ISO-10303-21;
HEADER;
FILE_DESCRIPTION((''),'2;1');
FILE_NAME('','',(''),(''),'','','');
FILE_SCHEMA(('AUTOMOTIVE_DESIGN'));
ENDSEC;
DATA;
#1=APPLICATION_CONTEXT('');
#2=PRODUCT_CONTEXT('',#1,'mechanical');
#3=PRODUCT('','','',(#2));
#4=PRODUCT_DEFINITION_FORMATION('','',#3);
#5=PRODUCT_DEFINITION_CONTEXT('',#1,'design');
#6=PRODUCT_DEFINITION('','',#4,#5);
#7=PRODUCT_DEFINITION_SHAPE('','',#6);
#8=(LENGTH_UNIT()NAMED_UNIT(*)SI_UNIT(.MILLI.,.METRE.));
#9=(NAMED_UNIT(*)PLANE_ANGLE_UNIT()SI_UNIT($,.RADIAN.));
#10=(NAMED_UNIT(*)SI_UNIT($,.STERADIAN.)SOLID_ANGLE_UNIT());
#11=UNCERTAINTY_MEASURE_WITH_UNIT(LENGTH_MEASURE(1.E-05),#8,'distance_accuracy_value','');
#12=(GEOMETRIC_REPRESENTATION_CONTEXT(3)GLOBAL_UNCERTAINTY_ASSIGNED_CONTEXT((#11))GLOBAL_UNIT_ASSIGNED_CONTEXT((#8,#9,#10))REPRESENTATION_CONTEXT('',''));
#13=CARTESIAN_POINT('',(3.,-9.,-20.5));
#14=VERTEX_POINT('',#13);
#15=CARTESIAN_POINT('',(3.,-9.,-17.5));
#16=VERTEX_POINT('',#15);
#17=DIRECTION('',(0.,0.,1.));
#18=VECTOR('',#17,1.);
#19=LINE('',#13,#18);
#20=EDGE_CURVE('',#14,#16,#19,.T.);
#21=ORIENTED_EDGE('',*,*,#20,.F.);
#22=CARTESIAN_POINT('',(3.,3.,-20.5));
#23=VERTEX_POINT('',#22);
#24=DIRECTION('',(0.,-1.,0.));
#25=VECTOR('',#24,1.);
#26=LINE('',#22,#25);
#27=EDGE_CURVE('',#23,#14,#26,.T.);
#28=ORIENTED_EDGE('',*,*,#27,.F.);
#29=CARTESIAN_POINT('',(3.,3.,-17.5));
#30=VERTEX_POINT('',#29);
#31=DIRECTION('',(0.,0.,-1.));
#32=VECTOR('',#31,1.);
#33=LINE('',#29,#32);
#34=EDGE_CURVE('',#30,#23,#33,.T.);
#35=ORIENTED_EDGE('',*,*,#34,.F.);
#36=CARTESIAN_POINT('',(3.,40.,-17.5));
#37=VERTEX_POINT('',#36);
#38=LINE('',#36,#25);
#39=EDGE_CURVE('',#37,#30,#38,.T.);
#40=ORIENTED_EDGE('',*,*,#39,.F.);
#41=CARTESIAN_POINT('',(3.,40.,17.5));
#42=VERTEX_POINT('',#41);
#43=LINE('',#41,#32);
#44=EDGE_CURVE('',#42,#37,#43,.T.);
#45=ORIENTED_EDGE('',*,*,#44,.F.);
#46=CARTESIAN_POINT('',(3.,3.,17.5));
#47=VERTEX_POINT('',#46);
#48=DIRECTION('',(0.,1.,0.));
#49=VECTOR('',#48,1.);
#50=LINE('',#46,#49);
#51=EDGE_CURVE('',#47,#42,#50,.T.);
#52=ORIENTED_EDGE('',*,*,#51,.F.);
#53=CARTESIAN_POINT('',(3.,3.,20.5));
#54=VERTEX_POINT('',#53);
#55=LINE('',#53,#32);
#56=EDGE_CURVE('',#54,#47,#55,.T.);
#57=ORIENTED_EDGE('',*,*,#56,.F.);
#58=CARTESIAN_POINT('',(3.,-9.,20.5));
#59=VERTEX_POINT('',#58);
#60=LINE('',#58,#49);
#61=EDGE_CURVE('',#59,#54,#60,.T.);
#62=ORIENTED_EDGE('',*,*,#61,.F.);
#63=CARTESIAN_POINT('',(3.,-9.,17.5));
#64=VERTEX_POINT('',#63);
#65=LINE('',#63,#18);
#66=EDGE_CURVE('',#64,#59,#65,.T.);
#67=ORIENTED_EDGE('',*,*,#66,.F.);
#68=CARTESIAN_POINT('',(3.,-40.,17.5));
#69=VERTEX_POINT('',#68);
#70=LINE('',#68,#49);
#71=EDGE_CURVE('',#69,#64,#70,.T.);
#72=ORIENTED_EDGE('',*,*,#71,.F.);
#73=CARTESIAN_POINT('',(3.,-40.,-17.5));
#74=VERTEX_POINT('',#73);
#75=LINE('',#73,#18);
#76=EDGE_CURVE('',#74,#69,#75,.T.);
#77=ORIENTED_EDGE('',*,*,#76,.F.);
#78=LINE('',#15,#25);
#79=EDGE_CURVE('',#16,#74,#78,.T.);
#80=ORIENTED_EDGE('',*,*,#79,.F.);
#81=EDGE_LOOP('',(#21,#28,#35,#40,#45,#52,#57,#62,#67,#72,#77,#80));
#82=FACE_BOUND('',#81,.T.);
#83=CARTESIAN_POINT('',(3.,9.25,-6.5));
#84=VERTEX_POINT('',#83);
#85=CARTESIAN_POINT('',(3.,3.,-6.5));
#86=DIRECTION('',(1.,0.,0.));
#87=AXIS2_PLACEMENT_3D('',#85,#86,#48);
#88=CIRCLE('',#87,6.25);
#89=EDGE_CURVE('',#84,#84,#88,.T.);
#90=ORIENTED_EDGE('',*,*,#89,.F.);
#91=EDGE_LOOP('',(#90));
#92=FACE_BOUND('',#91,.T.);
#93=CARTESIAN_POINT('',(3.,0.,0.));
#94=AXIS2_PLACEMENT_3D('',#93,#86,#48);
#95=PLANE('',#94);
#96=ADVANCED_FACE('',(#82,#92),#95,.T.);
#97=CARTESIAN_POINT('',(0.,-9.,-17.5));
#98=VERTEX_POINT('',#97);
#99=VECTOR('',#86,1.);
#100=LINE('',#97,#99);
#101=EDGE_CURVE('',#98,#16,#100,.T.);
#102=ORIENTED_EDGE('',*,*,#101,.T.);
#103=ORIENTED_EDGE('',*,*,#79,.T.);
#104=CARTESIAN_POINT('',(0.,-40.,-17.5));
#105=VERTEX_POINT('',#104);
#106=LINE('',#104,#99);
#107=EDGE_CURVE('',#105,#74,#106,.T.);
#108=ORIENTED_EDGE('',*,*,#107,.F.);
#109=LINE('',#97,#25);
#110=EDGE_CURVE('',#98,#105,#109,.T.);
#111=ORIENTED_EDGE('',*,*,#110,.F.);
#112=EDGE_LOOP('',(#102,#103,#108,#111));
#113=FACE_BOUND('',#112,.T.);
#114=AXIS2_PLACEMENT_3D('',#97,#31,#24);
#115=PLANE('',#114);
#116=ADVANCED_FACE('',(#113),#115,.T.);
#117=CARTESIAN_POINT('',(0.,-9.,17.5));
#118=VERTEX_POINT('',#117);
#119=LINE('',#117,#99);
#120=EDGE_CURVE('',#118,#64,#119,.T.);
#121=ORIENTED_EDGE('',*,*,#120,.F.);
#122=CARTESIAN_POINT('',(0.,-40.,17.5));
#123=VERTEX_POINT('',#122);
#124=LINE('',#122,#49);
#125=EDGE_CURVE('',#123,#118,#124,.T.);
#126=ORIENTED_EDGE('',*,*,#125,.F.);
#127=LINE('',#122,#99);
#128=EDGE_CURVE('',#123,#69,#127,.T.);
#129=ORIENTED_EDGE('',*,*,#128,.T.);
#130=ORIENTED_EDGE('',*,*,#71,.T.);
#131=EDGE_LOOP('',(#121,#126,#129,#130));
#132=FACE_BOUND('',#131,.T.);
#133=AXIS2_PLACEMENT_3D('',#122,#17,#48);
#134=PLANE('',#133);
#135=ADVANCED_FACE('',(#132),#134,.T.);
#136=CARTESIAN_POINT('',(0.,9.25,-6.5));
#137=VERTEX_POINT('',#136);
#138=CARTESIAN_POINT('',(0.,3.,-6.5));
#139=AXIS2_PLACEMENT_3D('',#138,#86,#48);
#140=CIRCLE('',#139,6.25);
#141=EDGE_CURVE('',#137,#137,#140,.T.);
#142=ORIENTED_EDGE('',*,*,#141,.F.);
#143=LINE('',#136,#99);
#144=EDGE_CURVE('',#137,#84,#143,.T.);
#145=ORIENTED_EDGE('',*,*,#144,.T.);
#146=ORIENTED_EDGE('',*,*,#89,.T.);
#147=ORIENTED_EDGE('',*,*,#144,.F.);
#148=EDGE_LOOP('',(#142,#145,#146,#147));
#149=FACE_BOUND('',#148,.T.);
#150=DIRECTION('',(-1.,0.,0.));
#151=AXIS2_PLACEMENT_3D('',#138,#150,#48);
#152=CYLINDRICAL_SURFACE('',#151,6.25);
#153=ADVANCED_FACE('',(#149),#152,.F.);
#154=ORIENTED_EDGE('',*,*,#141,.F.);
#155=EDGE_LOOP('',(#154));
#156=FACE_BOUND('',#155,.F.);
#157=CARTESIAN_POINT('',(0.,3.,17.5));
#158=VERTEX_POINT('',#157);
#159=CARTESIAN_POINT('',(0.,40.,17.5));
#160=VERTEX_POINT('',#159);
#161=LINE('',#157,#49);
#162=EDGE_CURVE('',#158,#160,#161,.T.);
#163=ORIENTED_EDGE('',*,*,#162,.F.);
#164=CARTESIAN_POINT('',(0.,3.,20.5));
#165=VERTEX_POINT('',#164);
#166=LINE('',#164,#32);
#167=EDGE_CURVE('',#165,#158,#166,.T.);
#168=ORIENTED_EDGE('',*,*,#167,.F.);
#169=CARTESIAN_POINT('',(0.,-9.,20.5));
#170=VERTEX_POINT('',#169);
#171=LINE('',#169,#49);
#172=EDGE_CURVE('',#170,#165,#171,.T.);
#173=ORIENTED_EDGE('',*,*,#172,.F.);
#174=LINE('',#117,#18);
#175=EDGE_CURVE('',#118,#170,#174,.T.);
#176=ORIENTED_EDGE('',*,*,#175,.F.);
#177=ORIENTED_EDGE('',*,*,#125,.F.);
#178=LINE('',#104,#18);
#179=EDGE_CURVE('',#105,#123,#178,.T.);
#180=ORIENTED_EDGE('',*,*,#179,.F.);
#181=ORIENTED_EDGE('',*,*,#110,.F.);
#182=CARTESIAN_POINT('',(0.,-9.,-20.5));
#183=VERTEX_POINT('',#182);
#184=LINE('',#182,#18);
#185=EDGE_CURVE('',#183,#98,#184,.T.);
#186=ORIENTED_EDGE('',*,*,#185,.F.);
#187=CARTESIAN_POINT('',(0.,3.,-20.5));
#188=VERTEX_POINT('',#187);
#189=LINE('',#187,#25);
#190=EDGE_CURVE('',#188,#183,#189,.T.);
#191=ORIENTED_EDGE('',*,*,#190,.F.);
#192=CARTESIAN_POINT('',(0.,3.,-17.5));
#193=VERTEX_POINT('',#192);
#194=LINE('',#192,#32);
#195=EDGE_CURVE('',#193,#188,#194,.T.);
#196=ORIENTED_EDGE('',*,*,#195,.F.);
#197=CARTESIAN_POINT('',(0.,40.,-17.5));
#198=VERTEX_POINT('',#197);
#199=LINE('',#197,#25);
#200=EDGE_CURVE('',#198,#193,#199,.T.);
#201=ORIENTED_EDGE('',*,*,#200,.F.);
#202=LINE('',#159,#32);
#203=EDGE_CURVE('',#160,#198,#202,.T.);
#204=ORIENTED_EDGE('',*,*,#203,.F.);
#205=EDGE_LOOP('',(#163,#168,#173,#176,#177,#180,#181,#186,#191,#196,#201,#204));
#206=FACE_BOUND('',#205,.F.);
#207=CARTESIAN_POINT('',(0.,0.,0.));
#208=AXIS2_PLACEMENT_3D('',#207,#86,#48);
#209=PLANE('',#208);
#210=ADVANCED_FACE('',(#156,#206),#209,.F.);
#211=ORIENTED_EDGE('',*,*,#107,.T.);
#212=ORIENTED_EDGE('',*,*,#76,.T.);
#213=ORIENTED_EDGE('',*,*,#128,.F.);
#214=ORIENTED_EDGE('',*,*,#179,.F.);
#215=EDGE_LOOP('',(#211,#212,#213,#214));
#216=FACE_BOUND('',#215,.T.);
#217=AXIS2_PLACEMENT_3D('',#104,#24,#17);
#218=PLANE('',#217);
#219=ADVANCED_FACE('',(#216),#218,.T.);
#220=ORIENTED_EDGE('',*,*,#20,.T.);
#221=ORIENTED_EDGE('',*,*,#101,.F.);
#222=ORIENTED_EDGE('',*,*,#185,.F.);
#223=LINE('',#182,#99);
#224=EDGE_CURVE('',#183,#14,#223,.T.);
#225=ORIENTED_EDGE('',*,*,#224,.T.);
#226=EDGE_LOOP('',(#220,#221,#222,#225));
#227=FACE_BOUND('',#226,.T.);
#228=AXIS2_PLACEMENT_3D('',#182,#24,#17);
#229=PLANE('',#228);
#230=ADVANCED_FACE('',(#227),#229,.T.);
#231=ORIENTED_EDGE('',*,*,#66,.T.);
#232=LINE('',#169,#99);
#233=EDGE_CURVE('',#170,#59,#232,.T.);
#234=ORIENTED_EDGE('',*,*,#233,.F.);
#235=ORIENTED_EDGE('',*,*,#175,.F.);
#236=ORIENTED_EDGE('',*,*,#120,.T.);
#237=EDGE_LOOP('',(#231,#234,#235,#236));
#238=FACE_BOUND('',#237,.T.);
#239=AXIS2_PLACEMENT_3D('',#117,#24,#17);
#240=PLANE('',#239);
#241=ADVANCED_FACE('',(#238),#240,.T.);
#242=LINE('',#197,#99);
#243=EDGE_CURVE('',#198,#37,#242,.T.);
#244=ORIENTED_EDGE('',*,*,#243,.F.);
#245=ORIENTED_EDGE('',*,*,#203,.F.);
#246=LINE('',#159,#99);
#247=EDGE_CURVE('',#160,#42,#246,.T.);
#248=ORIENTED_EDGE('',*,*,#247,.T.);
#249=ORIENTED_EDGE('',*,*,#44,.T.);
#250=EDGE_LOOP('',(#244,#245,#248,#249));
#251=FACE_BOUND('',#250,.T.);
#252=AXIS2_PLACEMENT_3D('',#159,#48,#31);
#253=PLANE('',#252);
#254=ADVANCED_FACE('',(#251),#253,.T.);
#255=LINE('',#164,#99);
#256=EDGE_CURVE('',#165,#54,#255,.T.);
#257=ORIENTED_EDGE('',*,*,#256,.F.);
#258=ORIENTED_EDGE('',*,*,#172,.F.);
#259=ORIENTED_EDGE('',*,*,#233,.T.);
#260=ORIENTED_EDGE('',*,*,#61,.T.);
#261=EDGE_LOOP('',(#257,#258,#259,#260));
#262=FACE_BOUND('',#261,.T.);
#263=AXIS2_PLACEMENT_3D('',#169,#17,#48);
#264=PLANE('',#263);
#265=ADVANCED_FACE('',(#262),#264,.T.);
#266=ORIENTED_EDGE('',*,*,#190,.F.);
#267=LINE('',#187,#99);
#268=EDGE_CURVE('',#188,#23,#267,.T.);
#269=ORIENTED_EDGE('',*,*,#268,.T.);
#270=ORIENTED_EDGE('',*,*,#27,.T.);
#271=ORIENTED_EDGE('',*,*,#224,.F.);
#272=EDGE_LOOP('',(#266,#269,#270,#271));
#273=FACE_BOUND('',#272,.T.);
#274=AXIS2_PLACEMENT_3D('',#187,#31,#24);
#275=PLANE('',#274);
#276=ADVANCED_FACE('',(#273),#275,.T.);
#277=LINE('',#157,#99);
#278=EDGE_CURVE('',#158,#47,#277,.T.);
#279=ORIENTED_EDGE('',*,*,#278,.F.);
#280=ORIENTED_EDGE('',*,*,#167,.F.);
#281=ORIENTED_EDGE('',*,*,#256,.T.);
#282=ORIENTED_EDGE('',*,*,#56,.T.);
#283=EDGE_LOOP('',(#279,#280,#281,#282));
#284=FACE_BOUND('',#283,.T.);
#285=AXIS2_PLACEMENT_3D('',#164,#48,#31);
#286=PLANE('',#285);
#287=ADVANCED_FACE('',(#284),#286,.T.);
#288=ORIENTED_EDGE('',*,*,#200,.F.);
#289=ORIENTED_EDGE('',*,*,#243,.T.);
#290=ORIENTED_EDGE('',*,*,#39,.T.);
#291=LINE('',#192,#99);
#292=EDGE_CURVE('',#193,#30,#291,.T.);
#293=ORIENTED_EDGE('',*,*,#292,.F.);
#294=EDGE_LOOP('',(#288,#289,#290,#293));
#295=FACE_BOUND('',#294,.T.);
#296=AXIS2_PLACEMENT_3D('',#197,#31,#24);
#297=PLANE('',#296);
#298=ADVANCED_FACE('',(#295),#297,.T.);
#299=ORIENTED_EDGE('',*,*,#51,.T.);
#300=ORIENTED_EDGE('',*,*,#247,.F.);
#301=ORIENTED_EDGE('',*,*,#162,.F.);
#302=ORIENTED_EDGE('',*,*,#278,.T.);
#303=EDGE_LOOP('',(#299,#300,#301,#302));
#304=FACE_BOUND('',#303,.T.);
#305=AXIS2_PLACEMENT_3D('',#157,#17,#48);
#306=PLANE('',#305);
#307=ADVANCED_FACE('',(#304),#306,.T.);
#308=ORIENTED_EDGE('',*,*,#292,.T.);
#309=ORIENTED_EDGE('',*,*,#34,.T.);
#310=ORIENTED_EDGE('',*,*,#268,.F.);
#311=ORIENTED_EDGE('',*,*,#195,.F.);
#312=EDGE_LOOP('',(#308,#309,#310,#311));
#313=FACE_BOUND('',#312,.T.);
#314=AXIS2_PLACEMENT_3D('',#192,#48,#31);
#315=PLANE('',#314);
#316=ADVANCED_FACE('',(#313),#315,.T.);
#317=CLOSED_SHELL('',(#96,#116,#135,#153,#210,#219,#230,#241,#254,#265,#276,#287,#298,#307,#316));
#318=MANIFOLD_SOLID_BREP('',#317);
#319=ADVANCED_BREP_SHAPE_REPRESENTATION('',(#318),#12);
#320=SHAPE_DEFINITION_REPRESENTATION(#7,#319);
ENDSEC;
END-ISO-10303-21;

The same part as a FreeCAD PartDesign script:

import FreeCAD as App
import Part
import Sketcher

V = App.Vector
Q = App.Units.Quantity

doc = App.newDocument("Part")
params = doc.addObject("Spreadsheet::Sheet", "Params")
for row, (alias, value) in enumerate([
    ("sketch1_diameter", "12.5 mm"),
    ("sketch1_width", "31 mm"),
    ("sketch1_width2", "12 mm"),
    ("sketch1_width3", "37 mm"),
    ("sketch1_height", "3 mm"),
    ("pad1_length", "3 mm"),
], start=1):
    params.set(f"A{row}", alias)
    params.set(f"B{row}", "=" + value)
    params.setAlias(f"B{row}", alias)

body = doc.addObject("PartDesign::Body", "Body")

# Sketch on YZ plane
sketch1 = doc.addObject("Sketcher::SketchObject", "Sketch")
body.addObject(sketch1)
sketch1.AttachmentSupport = (doc.YZ_Plane, [""])
sketch1.MapMode = "FlatFace"
sketch1.addGeometry(Part.LineSegment(V(-9, 20.5, 0), V(-9, 17.5, 0)), False)
sketch1.addGeometry(Part.LineSegment(V(-9, 17.5, 0), V(-40, 17.5, 0)), False)
sketch1.addGeometry(Part.LineSegment(V(-40, 17.5, 0), V(-40, -17.5, 0)), False)
sketch1.addGeometry(Part.LineSegment(V(-40, -17.5, 0), V(-9, -17.5, 0)), False)
sketch1.addGeometry(Part.LineSegment(V(-9, -17.5, 0), V(-9, -20.5, 0)), False)
sketch1.addGeometry(Part.LineSegment(V(-9, -20.5, 0), V(3, -20.5, 0)), False)
sketch1.addGeometry(Part.LineSegment(V(3, -20.5, 0), V(3, -17.5, 0)), False)
sketch1.addGeometry(Part.LineSegment(V(3, -17.5, 0), V(40, -17.5, 0)), False)
sketch1.addGeometry(Part.LineSegment(V(40, -17.5, 0), V(40, 17.5, 0)), False)
sketch1.addGeometry(Part.LineSegment(V(40, 17.5, 0), V(3, 17.5, 0)), False)
sketch1.addGeometry(Part.LineSegment(V(3, 17.5, 0), V(3, 20.5, 0)), False)
sketch1.addGeometry(Part.LineSegment(V(3, 20.5, 0), V(-9, 20.5, 0)), False)
sketch1.addGeometry(Part.Circle(V(3, -6.5, 0), V(0, 0, 1), 6.25), False)
sketch1.addConstraint(Sketcher.Constraint("Coincident", 0, 2, 1, 1))
sketch1.addConstraint(Sketcher.Constraint("Coincident", 1, 2, 2, 1))
sketch1.addConstraint(Sketcher.Constraint("Coincident", 2, 2, 3, 1))
sketch1.addConstraint(Sketcher.Constraint("Coincident", 3, 2, 4, 1))
sketch1.addConstraint(Sketcher.Constraint("Coincident", 4, 2, 5, 1))
sketch1.addConstraint(Sketcher.Constraint("Coincident", 5, 2, 6, 1))
sketch1.addConstraint(Sketcher.Constraint("Coincident", 6, 2, 7, 1))
sketch1.addConstraint(Sketcher.Constraint("Coincident", 7, 2, 8, 1))
sketch1.addConstraint(Sketcher.Constraint("Coincident", 8, 2, 9, 1))
sketch1.addConstraint(Sketcher.Constraint("Coincident", 9, 2, 10, 1))
sketch1.addConstraint(Sketcher.Constraint("Coincident", 10, 2, 11, 1))
sketch1.addConstraint(Sketcher.Constraint("Coincident", 11, 2, 0, 1))
sketch1.addConstraint(Sketcher.Constraint("Vertical", 0))
sketch1.addConstraint(Sketcher.Constraint("Horizontal", 1))
sketch1.addConstraint(Sketcher.Constraint("Vertical", 2))
sketch1.addConstraint(Sketcher.Constraint("Horizontal", 3))
sketch1.addConstraint(Sketcher.Constraint("Vertical", 4))
sketch1.addConstraint(Sketcher.Constraint("Horizontal", 5))
sketch1.addConstraint(Sketcher.Constraint("Vertical", 6))
sketch1.addConstraint(Sketcher.Constraint("Horizontal", 7))
sketch1.addConstraint(Sketcher.Constraint("Vertical", 8))
sketch1.addConstraint(Sketcher.Constraint("Horizontal", 9))
sketch1.addConstraint(Sketcher.Constraint("Vertical", 10))
sketch1.addConstraint(Sketcher.Constraint("Horizontal", 11))
sketch1.addConstraint(Sketcher.Constraint("Symmetric", 1, 2, 7, 2, -1, 1))
sketch1.addConstraint(Sketcher.Constraint("Symmetric", 0, 2, 3, 2, -1))
sketch1.addConstraint(Sketcher.Constraint("Symmetric", 6, 2, 9, 2, -1))
sketch1.addConstraint(Sketcher.Constraint("Vertical", 12, 3, 5, 2))
sketch1.addConstraint(Sketcher.Constraint("Equal", 0, 4))
sketch1.addConstraint(Sketcher.Constraint("Diameter", 12, Q("12.5 mm")))
sketch1.addConstraint(Sketcher.Constraint("DistanceX", 1, 2, 1, 1, Q("31 mm")))
sketch1.addConstraint(Sketcher.Constraint("DistanceX", 5, 1, 5, 2, Q("12 mm")))
sketch1.addConstraint(Sketcher.Constraint("DistanceX", 7, 1, 7, 2, Q("37 mm")))
sketch1.addConstraint(Sketcher.Constraint("DistanceY", 0, 2, 0, 1, Q("3 mm")))
sketch1.addConstraint(Sketcher.Constraint("DistanceY", 2, 2, 2, 1, Q("35 mm")))
sketch1.addConstraint(Sketcher.Constraint("DistanceY", 12, 3, 0, 2, Q("24 mm")))
sketch1.setExpression("Constraints[29]", "Params.sketch1_diameter")
sketch1.setExpression("Constraints[30]", "Params.sketch1_width")
sketch1.setExpression("Constraints[31]", "Params.sketch1_width2")
sketch1.setExpression("Constraints[32]", "Params.sketch1_width3")
sketch1.setExpression("Constraints[33]", "Params.sketch1_height")
pad1 = doc.addObject("PartDesign::Pad", "Pad")
body.addObject(pad1)
pad1.Profile = sketch1
pad1.setExpression("Length", "Params.pad1_length")

doc.recompute()
